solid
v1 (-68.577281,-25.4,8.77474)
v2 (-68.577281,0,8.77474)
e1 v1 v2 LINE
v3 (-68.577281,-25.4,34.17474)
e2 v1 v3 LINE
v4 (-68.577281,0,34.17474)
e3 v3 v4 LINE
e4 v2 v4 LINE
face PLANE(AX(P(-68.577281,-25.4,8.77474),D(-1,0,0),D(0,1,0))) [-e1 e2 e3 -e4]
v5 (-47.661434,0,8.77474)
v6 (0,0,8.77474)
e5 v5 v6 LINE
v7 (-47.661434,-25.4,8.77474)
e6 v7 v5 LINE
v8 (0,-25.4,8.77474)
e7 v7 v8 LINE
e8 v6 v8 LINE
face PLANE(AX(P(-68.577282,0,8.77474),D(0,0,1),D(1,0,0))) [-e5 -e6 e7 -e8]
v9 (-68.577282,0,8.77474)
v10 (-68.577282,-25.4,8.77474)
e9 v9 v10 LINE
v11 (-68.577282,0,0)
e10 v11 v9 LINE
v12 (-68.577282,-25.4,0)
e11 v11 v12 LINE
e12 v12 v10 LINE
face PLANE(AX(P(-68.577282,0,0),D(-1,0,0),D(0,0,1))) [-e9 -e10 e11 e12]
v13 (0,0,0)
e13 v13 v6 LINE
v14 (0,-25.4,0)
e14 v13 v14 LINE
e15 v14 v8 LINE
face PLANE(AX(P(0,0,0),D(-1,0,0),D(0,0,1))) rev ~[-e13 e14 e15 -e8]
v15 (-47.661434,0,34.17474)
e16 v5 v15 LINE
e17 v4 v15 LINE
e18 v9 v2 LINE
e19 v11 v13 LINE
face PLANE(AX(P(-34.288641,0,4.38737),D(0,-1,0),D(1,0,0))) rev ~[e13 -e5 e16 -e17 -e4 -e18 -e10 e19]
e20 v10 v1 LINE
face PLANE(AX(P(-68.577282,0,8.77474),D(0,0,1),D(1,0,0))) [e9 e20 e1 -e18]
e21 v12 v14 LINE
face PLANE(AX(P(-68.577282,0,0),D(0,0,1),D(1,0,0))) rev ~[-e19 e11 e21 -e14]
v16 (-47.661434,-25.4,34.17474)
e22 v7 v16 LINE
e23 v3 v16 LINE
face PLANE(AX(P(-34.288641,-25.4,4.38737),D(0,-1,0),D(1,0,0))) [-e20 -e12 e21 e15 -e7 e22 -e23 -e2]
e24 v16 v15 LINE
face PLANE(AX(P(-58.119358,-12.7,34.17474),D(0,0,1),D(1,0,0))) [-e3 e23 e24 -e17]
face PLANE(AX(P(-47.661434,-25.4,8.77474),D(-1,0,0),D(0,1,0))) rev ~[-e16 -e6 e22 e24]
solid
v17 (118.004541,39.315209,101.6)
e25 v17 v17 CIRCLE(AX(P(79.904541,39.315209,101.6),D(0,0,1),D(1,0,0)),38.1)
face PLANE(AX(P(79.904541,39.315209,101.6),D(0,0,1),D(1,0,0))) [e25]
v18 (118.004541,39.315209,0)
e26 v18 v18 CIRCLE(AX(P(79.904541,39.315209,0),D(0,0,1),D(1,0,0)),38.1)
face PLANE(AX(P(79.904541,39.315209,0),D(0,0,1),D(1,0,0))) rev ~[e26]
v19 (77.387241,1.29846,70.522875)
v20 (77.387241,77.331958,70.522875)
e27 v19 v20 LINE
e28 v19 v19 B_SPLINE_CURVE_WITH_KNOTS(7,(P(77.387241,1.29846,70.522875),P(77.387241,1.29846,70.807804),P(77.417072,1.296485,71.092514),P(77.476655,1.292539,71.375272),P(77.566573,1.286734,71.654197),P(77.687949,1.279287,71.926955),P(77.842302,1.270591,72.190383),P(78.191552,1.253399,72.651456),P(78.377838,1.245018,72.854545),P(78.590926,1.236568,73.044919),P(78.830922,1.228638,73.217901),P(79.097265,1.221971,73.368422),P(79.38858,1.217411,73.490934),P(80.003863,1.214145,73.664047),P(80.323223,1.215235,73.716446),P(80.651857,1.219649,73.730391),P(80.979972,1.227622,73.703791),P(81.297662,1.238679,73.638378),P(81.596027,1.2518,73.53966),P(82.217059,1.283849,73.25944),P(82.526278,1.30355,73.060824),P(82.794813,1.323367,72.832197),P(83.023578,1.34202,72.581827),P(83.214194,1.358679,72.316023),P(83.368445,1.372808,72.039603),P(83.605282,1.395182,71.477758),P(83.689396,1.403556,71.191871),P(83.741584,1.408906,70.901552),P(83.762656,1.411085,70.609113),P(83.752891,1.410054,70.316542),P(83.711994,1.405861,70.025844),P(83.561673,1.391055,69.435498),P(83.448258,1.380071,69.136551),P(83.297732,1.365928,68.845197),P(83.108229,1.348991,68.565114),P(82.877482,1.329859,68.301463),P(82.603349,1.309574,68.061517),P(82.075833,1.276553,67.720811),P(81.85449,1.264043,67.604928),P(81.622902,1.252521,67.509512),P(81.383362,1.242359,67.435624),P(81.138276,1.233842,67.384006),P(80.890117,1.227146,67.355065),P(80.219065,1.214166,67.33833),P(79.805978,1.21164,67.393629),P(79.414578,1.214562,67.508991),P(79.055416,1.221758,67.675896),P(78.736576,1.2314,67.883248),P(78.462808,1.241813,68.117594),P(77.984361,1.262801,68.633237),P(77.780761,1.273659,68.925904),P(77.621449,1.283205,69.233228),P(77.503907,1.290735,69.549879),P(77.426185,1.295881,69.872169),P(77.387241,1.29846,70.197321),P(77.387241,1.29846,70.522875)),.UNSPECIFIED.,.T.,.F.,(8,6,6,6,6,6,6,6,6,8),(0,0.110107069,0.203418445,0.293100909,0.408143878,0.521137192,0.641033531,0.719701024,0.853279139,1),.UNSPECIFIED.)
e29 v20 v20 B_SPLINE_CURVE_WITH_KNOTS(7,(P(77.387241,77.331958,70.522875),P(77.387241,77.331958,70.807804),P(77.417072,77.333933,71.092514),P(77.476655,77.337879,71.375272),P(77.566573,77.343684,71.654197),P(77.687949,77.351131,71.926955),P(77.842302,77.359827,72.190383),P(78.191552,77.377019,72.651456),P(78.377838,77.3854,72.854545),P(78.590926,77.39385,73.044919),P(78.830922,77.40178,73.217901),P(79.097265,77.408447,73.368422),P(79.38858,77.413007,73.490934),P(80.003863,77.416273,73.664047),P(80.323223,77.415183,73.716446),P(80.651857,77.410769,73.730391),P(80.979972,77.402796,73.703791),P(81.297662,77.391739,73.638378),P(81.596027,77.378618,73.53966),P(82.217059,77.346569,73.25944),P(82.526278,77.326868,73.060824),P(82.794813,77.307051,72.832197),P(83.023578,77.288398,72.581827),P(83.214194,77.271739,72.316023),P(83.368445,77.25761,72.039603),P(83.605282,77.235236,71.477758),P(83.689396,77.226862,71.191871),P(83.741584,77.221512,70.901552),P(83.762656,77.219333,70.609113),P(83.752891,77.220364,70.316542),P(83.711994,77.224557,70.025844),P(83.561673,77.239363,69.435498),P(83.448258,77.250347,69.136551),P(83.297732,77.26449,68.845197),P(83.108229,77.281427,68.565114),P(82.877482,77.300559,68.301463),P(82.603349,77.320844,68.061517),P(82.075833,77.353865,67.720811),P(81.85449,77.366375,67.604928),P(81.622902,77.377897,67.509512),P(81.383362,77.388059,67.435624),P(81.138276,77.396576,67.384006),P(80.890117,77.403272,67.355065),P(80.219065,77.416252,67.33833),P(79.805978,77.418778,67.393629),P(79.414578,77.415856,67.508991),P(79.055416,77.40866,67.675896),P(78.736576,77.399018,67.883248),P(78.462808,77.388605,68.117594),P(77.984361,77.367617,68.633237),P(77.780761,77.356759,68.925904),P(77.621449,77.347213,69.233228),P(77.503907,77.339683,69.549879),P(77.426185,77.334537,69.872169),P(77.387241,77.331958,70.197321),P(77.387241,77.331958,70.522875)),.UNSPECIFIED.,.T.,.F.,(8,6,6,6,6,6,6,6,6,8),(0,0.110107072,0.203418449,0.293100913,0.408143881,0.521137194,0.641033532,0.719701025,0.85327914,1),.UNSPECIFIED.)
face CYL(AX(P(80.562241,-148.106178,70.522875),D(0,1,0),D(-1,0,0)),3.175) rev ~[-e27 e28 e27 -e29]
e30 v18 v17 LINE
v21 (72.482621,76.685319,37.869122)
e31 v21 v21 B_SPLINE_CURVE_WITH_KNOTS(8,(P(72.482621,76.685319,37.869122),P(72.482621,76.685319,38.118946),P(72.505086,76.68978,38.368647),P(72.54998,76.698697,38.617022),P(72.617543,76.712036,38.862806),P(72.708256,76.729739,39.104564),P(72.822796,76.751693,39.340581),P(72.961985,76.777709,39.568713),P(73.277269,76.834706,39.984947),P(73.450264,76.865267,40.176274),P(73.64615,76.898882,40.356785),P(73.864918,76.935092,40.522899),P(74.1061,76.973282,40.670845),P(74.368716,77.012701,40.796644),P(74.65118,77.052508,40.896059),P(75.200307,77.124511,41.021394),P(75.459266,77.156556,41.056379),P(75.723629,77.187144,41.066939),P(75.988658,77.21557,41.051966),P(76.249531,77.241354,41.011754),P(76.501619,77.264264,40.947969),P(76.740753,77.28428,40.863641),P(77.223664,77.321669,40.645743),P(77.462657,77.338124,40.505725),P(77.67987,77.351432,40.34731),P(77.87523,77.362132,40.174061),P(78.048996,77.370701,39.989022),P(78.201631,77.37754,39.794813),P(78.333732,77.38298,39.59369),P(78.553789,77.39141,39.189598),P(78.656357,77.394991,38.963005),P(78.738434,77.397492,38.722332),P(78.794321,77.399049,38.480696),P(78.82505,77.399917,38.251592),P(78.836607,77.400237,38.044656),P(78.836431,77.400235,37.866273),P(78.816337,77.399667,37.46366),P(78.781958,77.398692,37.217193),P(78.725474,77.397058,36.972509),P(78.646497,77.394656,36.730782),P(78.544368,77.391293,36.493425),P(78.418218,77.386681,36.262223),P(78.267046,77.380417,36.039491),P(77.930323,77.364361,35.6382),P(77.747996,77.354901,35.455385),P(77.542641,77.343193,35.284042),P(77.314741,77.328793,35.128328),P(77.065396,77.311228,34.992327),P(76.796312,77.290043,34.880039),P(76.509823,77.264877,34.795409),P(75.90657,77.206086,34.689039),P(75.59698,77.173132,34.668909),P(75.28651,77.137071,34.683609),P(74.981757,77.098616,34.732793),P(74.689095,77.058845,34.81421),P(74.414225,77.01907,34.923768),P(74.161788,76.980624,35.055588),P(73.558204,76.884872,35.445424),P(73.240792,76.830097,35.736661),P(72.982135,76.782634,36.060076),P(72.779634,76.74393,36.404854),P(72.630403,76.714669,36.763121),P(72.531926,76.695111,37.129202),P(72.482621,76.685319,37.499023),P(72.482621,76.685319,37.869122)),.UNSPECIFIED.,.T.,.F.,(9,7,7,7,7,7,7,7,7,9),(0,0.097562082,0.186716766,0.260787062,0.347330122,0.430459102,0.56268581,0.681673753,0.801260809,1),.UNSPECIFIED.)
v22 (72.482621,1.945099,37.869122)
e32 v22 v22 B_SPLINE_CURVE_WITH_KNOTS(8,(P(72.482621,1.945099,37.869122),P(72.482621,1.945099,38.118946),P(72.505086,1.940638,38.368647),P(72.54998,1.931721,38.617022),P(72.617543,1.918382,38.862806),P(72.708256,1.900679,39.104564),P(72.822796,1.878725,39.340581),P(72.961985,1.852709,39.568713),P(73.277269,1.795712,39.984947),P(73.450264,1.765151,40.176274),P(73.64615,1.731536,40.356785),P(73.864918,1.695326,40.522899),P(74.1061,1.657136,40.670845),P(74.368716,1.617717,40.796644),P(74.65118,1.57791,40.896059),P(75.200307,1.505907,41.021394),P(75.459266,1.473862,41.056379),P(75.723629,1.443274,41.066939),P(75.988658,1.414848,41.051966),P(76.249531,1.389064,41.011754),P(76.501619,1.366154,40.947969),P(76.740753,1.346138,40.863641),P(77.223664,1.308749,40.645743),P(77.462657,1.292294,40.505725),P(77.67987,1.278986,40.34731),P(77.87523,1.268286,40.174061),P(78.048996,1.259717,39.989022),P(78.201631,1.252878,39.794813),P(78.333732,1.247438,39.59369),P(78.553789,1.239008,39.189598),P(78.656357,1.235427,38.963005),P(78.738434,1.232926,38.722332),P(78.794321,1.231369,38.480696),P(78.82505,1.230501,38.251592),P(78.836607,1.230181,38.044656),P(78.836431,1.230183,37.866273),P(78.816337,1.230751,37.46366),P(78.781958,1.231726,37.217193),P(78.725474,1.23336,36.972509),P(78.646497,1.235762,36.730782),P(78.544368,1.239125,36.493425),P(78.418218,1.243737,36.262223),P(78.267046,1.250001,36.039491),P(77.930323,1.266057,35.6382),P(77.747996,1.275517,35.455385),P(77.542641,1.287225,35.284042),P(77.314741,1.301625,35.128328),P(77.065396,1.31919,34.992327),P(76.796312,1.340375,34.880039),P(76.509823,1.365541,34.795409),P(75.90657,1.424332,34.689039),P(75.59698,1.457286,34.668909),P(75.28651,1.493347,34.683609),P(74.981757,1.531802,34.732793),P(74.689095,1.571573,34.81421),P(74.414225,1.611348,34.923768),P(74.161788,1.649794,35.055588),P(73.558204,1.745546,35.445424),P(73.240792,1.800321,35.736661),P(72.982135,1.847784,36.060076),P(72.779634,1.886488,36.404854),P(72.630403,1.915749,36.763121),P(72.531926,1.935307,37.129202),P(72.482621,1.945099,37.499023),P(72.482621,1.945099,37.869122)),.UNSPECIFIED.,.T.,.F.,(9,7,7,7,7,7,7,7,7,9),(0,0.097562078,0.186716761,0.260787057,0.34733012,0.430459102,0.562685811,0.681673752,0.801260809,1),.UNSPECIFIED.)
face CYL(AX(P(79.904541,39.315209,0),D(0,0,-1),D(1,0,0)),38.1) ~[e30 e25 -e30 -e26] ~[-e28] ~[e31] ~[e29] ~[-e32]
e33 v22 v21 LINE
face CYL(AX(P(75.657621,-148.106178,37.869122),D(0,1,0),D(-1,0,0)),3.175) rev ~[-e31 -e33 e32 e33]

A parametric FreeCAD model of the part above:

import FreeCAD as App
import Part
import Sketcher
Q = App.Units.Quantity

doc = App.newDocument("Part")
body = doc.addObject("PartDesign::Body", "Body")

sketch1 = doc.addObject("Sketcher::SketchObject", "Sketch")
body.addObject(sketch1)
sketch1.AttachmentSupport = (doc.XZ_Plane, [""])
sketch1.MapMode = "FlatFace"
sketch1.addGeometry([
    Part.LineSegment(App.Vector(-69, 9, 0), App.Vector(-69, 0, 0)),
    Part.LineSegment(App.Vector(-69, 0, 0), App.Vector(0, 0, 0)),
    Part.LineSegment(App.Vector(0, 0, 0), App.Vector(0, 9, 0)),
    Part.LineSegment(App.Vector(0, 9, 0), App.Vector(-69, 9, 0)),
], False)
sketch1.addConstraint([
    Sketcher.Constraint("Coincident", 0, 2, 1, 1),
    Sketcher.Constraint("Coincident", 1, 2, 2, 1),
    Sketcher.Constraint("Coincident", 2, 2, 3, 1),
    Sketcher.Constraint("Coincident", 3, 2, 0, 1),
    Sketcher.Constraint("Vertical", 0),
    Sketcher.Constraint("Horizontal", 1),
    Sketcher.Constraint("Vertical", 2),
    Sketcher.Constraint("Horizontal", 3),
    Sketcher.Constraint("Coincident", 1, 2, -1, 1),
    Sketcher.Constraint("DistanceX", 1, 1, 1, 2, 68.577282),
    Sketcher.Constraint("DistanceY", 0, 2, 0, 1, 8.77474),
])
pad1 = doc.addObject("PartDesign::Pad", "Pad")
body.addObject(pad1)
pad1.Profile = sketch1
pad1.Length = Q("1 in")

sketch2 = doc.addObject("Sketcher::SketchObject", "Sketch001")
body.addObject(sketch2)
sketch2.AttachmentSupport = (doc.XY_Plane, [""])
sketch2.MapMode = "FlatFace"
sketch2.AttachmentOffset = App.Placement(App.Vector(0, 0, 8.77474), App.Rotation())
sketch2.addGeometry([
    Part.LineSegment(App.Vector(-69, 0, 0), App.Vector(-69, -25, 0)),
    Part.LineSegment(App.Vector(-69, -25, 0), App.Vector(-48, -25, 0)),
    Part.LineSegment(App.Vector(-48, -25, 0), App.Vector(-48, 0, 0)),
    Part.LineSegment(App.Vector(-48, 0, 0), App.Vector(-69, 0, 0)),
], False)
sketch2.addConstraint([
    Sketcher.Constraint("Coincident", 0, 2, 1, 1),
    Sketcher.Constraint("Coincident", 1, 2, 2, 1),
    Sketcher.Constraint("Coincident", 2, 2, 3, 1),
    Sketcher.Constraint("Coincident", 3, 2, 0, 1),
    Sketcher.Constraint("Vertical", 0),
    Sketcher.Constraint("Horizontal", 1),
    Sketcher.Constraint("Vertical", 2),
    Sketcher.Constraint("Horizontal", 3),
    Sketcher.Constraint("PointOnObject", 2, 2, -1),
    Sketcher.Constraint("DistanceY", 0, 2, 0, 1, Q("1 in")),
    Sketcher.Constraint("DistanceX", 1, 1, 1, 2, 20.915847),
    Sketcher.Constraint("DistanceX", 0, 2, -1, 1, 68.577281),
])
pad2 = doc.addObject("PartDesign::Pad", "Pad001")
body.addObject(pad2)
pad2.Profile = sketch2
pad2.Length = Q("1 in")
body2 = doc.addObject("PartDesign::Body", "Body001")

sketch3 = doc.addObject("Sketcher::SketchObject", "Sketch002")
body2.addObject(sketch3)
sketch3.AttachmentSupport = (doc.getObject("XY_Plane001"), [""])
sketch3.MapMode = "FlatFace"
sketch3.addGeometry(Part.Circle(App.Vector(80, 39, 0), App.Vector(0, 0, 1), 38), False)
sketch3.addConstraint([
    Sketcher.Constraint("Diameter", 0, Q("3 in")),
    Sketcher.Constraint("DistanceX", -1, 1, 0, 3, 79.904541),
    Sketcher.Constraint("DistanceY", -1, 1, 0, 3, 39.315209),
])
pad3 = doc.addObject("PartDesign::Pad", "Pad002")
body2.addObject(pad3)
pad3.Profile = sketch3
pad3.Length = Q("4 in")

sketch4 = doc.addObject("Sketcher::SketchObject", "Sketch003")
body2.addObject(sketch4)
sketch4.AttachmentSupport = (doc.getObject("XZ_Plane001"), [""])
sketch4.MapMode = "FlatFace"
sketch4.addGeometry(Part.Circle(App.Vector(80.6, 70.5, 0), App.Vector(0, 0, 1), 3.2), False)
sketch4.addConstraint([
    Sketcher.Constraint("Diameter", 0, Q("0.25 in")),
    Sketcher.Constraint("DistanceX", -1, 1, 0, 3, 80.562241),
    Sketcher.Constraint("DistanceY", -1, 1, 0, 3, 70.522875),
])
doc.recompute()
hole = doc.addObject("PartDesign::Hole", "Hole")
body2.addObject(hole)
hole.Profile = sketch4
hole.ThreadType = "None"
hole.Diameter = Q("0.25 in")
hole.DepthType = "ThroughAll"

sketch5 = doc.addObject("Sketcher::SketchObject", "Sketch004")
body2.addObject(sketch5)
sketch5.AttachmentSupport = (doc.getObject("XZ_Plane001"), [""])
sketch5.MapMode = "FlatFace"
sketch5.addGeometry(Part.Circle(App.Vector(75.7, 37.9, 0), App.Vector(0, 0, 1), 3.2), False)
sketch5.addConstraint([
    Sketcher.Constraint("Diameter", 0, Q("0.25 in")),
    Sketcher.Constraint("DistanceX", -1, 1, 0, 3, 75.657621),
    Sketcher.Constraint("DistanceY", -1, 1, 0, 3, 37.869122),
])
doc.recompute()
hole2 = doc.addObject("PartDesign::Hole", "Hole001")
body2.addObject(hole2)
hole2.Profile = sketch5
hole2.ThreadType = "None"
hole2.Diameter = Q("0.25 in")
hole2.DepthType = "ThroughAll"

doc.recompute()
